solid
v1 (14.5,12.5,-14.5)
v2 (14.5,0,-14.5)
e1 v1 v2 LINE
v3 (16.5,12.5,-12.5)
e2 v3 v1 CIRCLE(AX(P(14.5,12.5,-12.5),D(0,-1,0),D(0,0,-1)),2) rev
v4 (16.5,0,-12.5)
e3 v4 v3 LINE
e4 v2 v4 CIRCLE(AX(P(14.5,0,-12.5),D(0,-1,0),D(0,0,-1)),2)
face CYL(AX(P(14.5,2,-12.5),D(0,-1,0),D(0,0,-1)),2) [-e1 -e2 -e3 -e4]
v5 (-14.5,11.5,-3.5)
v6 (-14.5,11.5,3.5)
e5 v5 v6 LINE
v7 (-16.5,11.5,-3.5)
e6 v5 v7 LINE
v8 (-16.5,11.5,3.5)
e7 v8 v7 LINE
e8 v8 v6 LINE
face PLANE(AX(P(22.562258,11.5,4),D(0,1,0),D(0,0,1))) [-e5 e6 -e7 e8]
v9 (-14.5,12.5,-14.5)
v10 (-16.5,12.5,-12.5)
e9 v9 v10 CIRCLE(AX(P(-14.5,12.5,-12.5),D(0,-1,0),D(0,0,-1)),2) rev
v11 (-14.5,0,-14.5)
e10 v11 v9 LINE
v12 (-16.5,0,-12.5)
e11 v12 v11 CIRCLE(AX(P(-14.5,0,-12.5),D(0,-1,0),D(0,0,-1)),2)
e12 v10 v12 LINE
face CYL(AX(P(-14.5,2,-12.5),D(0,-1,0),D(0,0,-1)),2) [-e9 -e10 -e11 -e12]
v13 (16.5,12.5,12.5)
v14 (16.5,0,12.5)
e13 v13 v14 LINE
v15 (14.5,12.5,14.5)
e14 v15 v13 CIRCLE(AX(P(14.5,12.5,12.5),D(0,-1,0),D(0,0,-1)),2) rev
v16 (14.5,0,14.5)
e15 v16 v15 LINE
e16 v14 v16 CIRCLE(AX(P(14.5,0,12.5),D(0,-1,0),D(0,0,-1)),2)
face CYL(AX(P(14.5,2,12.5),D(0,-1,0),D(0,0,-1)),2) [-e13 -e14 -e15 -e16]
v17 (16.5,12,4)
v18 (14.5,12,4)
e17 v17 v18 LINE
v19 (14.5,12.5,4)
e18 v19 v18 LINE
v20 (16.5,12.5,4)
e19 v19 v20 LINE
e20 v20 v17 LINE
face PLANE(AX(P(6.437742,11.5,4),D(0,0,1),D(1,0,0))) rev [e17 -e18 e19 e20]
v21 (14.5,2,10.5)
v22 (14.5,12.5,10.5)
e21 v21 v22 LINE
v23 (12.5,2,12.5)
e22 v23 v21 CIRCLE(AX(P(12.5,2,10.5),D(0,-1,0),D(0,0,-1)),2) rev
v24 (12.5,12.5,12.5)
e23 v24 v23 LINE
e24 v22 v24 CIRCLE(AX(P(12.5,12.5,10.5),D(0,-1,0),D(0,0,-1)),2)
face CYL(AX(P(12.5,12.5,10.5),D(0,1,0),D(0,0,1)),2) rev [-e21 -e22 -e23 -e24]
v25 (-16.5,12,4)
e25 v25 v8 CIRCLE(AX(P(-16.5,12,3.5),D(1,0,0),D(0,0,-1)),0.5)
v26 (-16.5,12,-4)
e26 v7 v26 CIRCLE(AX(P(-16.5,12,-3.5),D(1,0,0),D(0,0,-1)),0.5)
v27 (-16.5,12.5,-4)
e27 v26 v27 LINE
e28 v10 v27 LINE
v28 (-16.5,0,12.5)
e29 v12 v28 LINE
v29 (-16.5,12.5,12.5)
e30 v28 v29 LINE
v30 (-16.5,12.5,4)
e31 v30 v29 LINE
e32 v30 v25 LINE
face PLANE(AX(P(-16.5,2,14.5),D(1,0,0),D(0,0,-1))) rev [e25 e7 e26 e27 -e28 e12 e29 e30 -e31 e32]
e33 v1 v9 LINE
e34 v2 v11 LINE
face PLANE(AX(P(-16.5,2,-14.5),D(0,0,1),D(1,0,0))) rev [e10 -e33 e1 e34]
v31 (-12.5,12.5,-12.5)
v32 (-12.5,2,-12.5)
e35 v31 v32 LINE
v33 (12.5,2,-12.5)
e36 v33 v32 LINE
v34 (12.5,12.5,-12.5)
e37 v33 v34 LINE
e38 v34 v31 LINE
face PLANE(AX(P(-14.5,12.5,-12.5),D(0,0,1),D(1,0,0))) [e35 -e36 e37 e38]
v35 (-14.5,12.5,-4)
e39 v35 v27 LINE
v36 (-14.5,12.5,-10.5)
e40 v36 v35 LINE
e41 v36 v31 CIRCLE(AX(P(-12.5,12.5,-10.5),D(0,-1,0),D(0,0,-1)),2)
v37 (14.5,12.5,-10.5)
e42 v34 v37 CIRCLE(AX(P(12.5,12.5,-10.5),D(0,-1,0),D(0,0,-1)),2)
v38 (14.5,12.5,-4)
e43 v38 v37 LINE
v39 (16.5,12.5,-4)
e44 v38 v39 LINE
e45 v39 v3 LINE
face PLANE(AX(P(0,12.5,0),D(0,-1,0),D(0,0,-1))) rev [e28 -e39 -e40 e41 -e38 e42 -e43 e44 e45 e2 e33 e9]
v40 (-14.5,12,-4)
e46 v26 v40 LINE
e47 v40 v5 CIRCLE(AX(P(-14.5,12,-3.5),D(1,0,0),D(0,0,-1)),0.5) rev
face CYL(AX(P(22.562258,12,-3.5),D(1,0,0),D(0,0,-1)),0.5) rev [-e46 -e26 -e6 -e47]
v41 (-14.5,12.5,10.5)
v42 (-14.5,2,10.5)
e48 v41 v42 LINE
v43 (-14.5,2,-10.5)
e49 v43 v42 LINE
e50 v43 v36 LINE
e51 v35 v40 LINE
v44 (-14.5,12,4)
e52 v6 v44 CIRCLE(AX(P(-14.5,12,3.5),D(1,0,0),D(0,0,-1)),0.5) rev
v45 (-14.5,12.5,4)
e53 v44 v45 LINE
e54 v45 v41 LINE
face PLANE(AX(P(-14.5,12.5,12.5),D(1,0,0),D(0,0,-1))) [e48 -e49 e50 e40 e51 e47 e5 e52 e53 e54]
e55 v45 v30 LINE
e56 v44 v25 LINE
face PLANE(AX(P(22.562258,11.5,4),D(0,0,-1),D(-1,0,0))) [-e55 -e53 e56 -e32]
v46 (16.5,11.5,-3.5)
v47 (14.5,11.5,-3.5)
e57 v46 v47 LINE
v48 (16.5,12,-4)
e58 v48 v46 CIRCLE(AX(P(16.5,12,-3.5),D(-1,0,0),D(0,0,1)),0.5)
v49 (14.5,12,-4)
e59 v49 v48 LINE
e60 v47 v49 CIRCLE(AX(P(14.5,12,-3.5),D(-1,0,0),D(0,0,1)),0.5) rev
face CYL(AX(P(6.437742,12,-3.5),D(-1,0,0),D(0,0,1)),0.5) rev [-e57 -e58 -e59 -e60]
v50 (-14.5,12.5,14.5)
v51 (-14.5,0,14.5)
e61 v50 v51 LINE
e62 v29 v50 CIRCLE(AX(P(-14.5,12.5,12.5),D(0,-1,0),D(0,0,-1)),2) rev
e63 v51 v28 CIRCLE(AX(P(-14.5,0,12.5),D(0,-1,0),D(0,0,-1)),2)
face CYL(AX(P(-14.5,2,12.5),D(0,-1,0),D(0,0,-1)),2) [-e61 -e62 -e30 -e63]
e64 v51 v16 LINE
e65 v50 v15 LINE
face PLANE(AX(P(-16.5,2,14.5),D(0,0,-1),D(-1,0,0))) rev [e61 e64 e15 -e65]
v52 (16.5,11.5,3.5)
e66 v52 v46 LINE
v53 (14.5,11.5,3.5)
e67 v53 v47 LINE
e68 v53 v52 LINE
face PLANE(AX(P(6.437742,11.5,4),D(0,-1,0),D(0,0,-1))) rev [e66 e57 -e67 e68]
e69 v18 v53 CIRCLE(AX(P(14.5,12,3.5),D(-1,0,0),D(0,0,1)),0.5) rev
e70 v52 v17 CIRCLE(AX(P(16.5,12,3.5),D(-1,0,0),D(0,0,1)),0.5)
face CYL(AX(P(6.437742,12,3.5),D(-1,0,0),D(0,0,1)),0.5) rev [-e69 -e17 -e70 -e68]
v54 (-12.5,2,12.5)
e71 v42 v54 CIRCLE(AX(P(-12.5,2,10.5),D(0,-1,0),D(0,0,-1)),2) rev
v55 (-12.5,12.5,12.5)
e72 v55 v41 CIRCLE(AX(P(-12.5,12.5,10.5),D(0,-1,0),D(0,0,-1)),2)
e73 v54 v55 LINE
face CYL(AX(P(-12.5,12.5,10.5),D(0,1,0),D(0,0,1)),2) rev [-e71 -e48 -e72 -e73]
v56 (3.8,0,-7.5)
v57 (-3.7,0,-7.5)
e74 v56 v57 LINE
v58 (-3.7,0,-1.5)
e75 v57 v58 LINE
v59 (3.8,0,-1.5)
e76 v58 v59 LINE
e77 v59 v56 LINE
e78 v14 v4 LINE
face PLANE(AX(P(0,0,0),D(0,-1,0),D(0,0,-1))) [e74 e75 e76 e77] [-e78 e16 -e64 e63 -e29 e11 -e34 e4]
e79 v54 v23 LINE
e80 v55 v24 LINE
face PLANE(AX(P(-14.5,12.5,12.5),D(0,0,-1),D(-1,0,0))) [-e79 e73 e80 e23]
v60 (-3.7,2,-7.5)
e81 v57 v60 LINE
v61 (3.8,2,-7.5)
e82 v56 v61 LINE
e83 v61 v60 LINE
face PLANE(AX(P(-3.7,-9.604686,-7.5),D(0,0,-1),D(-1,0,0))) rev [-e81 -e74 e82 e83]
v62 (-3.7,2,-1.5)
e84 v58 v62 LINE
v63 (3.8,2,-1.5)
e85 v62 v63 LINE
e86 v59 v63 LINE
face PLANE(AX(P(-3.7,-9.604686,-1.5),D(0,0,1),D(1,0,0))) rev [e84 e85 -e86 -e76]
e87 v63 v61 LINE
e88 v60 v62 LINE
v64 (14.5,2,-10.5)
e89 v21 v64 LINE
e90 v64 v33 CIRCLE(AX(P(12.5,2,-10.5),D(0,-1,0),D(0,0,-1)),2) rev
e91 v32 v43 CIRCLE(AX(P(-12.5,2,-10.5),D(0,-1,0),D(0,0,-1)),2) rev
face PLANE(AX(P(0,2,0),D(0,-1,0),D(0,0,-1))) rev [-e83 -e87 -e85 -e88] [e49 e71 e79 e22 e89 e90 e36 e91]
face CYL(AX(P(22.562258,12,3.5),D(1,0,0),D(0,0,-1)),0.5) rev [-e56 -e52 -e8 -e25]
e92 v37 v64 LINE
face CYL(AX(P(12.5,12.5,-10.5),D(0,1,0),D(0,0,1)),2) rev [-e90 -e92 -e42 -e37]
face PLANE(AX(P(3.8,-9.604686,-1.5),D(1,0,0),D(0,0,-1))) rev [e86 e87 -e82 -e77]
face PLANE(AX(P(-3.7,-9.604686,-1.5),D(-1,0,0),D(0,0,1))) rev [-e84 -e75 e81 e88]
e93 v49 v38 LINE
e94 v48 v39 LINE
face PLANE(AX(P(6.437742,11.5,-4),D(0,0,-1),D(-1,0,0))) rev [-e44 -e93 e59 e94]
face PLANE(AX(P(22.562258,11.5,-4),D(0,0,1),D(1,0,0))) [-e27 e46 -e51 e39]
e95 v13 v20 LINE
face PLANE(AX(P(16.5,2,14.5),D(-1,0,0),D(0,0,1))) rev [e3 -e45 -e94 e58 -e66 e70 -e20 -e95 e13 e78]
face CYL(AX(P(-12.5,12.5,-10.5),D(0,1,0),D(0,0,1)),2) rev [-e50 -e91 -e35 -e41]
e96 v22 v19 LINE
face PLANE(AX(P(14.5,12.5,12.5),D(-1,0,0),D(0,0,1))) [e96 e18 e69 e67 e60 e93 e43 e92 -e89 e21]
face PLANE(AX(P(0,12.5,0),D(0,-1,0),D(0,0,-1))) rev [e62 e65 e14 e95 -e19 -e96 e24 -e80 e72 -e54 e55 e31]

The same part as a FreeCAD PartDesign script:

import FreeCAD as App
import Part
import Sketcher

V = App.Vector
Q = App.Units.Quantity


def edges_at(feature, points):
    """Names of the edges that pass closest to the given points."""
    edges = feature.Shape.Edges
    near = lambda p: min(range(len(edges)), key=lambda i: edges[i].distToShape(Part.Vertex(*p))[0])
    return sorted({f"Edge{near(p) + 1}" for p in points})


def add_polygon(sketch, points):
    """Adds a closed chain of lines whose ends are joined by coincident constraints."""
    first, n = sketch.GeometryCount, len(points)
    for a, b in zip(points, points[1:] + points[:1]):
        sketch.addGeometry(Part.LineSegment(App.Vector(*a, 0), App.Vector(*b, 0)), False)
    for i in range(n):
        sketch.addConstraint(Sketcher.Constraint("Coincident", first + i, 2, first + (i + 1) % n, 1))

doc = App.newDocument("Part")
body = doc.addObject("PartDesign::Body", "Body")

# Sketch on XZ plane
sketch1 = body.newObject("Sketcher::SketchObject", "Sketch")
sketch1.AttachmentSupport = (doc.getObject("XZ_Plane"), [""])
sketch1.MapMode = "FlatFace"
add_polygon(sketch1, [(-16.5, -14.5), (-16.5, 14.5), (16.5, 14.5), (16.5, -14.5)])  # lines 0-3
sketch1.addConstraint([
    Sketcher.Constraint("Vertical", 0),
    Sketcher.Constraint("Horizontal", 1),
    Sketcher.Constraint("Vertical", 2),
    Sketcher.Constraint("Horizontal", 3),
    Sketcher.Constraint("Symmetric", 0, 2, 2, 2, -1, 1),
    Sketcher.Constraint("DistanceX", 1, 1, 1, 2, Q("33 mm")),
    Sketcher.Constraint("DistanceY", 0, 1, 0, 2, Q("29 mm")),
])
pad1 = body.newObject("PartDesign::Pad", "Pad")
pad1.Profile = sketch1
pad1.Length = 2
pad1.Reversed = True

# Sketch on XZ plane
sketch2 = body.newObject("Sketcher::SketchObject", "Sketch001")
sketch2.AttachmentSupport = (doc.getObject("XZ_Plane"), [""])
sketch2.MapMode = "FlatFace"
sketch2.AttachmentOffset = App.Placement(V(0, 0, -2), App.Rotation())
add_polygon(sketch2, [(-16.5, -14.5), (-16.5, 14.5), (16.5, 14.5), (16.5, -14.5)])  # lines 0-3
add_polygon(sketch2, [(14.5, 12.5), (-14.5, 12.5), (-14.5, -12.5), (14.5, -12.5)])  # lines 4-7
sketch2.addConstraint([
    Sketcher.Constraint("Vertical", 0),
    Sketcher.Constraint("Horizontal", 1),
    Sketcher.Constraint("Vertical", 2),
    Sketcher.Constraint("Horizontal", 3),
    Sketcher.Constraint("Horizontal", 4),
    Sketcher.Constraint("Vertical", 5),
    Sketcher.Constraint("Horizontal", 6),
    Sketcher.Constraint("Vertical", 7),
    Sketcher.Constraint("Symmetric", 0, 2, 2, 2, -1, 1),
    Sketcher.Constraint("Symmetric", 4, 2, 6, 2, -1, 1),
    Sketcher.Constraint("Equal", 6, 0),
    Sketcher.Constraint("DistanceX", 1, 1, 1, 2, Q("33 mm")),
    Sketcher.Constraint("DistanceX", 4, 2, 4, 1, Q("29 mm")),
    Sketcher.Constraint("DistanceY", 5, 2, 5, 1, Q("25 mm")),
])
pad2 = body.newObject("PartDesign::Pad", "Pad001")
pad2.Profile = sketch2
pad2.Length = 10.5
pad2.Reversed = True

# Sketch on XZ plane
sketch3 = body.newObject("Sketcher::SketchObject", "Sketch002")
sketch3.AttachmentSupport = (doc.getObject("XZ_Plane"), [""])
sketch3.MapMode = "FlatFace"
sketch3.AttachmentOffset = App.Placement(V(0, 0, -2), App.Rotation())
add_polygon(sketch3, [(-3.7, -7.5), (-3.7, -1.5), (3.8, -1.5), (3.8, -7.5)])  # lines 0-3
sketch3.addConstraint([
    Sketcher.Constraint("Vertical", 0),
    Sketcher.Constraint("Horizontal", 1),
    Sketcher.Constraint("Vertical", 2),
    Sketcher.Constraint("Horizontal", 3),
    Sketcher.Constraint("DistanceY", 0, 1, 0, 2, Q("6 mm")),
    Sketcher.Constraint("DistanceX", 1, 1, 1, 2, Q("7.5 mm")),
    Sketcher.Constraint("DistanceX", 0, 2, -1, 1, Q("3.7 mm")),
    Sketcher.Constraint("DistanceY", 0, 2, -1, 1, Q("1.5 mm")),
])
pocket1 = body.newObject("PartDesign::Pocket", "Pocket")
pocket1.Profile = sketch3
pocket1.Length = 2
pocket1.Reversed = True
doc.recompute()

fillet = body.newObject("PartDesign::Fillet", "Fillet")
fillet.Base = (pocket1, edges_at(pocket1, [
    (14.5, 7.25, -12.5),
    (-14.5, 7.25, -12.5),
    (-14.5, 7.25, 12.5),
    (14.5, 7.25, 12.5),
    (16.5, 6.25, 14.5),
    (-16.5, 6.25, 14.5),
    (-16.5, 6.25, -14.5),
    (16.5, 6.25, -14.5),
]))
fillet.Radius = 2

# Sketch on YZ plane
sketch4 = body.newObject("Sketcher::SketchObject", "Sketch003")
sketch4.AttachmentSupport = (doc.getObject("YZ_Plane"), [""])
sketch4.MapMode = "FlatFace"
sketch4.AttachmentOffset = App.Placement(V(0, 0, 16.5), App.Rotation())
add_polygon(sketch4, [(12.5, 4), (11.5, 4), (11.5, -4), (12.5, -4)])  # lines 0-3
sketch4.addConstraint([
    Sketcher.Constraint("Horizontal", 0),
    Sketcher.Constraint("Vertical", 1),
    Sketcher.Constraint("Horizontal", 2),
    Sketcher.Constraint("Vertical", 3),
    Sketcher.Constraint("DistanceX", 0, 2, 0, 1, Q("1 mm")),
    Sketcher.Constraint("DistanceY", 1, 2, 1, 1, Q("8 mm")),
    Sketcher.Constraint("DistanceY", -1, 1, 0, 2, Q("4 mm")),
    Sketcher.Constraint("DistanceX", -1, 1, 0, 2, Q("11.5 mm")),
])
pocket2 = body.newObject("PartDesign::Pocket", "Pocket001")
pocket2.Profile = sketch4
pocket2.Length = 31
doc.recompute()

fillet2 = body.newObject("PartDesign::Fillet", "Fillet001")
fillet2.Base = (pocket2, edges_at(pocket2, [(15.5, 11.5, 4), (15.5, 11.5, -4)]))
fillet2.Radius = 0.5
doc.recompute()

mirrored = body.newObject("PartDesign::Mirrored", "Mirrored")
mirrored.Originals = [pocket2]
mirrored.MirrorPlane = (doc.getObject("YZ_Plane"), [""])
body.Tip = mirrored
doc.recompute()

fillet3 = body.newObject("PartDesign::Fillet", "Fillet002")
fillet3.Base = (mirrored, edges_at(mirrored, [(-15.5, 11.5, 4), (-15.5, 11.5, -4)]))
fillet3.Radius = 0.5

doc.recompute()
